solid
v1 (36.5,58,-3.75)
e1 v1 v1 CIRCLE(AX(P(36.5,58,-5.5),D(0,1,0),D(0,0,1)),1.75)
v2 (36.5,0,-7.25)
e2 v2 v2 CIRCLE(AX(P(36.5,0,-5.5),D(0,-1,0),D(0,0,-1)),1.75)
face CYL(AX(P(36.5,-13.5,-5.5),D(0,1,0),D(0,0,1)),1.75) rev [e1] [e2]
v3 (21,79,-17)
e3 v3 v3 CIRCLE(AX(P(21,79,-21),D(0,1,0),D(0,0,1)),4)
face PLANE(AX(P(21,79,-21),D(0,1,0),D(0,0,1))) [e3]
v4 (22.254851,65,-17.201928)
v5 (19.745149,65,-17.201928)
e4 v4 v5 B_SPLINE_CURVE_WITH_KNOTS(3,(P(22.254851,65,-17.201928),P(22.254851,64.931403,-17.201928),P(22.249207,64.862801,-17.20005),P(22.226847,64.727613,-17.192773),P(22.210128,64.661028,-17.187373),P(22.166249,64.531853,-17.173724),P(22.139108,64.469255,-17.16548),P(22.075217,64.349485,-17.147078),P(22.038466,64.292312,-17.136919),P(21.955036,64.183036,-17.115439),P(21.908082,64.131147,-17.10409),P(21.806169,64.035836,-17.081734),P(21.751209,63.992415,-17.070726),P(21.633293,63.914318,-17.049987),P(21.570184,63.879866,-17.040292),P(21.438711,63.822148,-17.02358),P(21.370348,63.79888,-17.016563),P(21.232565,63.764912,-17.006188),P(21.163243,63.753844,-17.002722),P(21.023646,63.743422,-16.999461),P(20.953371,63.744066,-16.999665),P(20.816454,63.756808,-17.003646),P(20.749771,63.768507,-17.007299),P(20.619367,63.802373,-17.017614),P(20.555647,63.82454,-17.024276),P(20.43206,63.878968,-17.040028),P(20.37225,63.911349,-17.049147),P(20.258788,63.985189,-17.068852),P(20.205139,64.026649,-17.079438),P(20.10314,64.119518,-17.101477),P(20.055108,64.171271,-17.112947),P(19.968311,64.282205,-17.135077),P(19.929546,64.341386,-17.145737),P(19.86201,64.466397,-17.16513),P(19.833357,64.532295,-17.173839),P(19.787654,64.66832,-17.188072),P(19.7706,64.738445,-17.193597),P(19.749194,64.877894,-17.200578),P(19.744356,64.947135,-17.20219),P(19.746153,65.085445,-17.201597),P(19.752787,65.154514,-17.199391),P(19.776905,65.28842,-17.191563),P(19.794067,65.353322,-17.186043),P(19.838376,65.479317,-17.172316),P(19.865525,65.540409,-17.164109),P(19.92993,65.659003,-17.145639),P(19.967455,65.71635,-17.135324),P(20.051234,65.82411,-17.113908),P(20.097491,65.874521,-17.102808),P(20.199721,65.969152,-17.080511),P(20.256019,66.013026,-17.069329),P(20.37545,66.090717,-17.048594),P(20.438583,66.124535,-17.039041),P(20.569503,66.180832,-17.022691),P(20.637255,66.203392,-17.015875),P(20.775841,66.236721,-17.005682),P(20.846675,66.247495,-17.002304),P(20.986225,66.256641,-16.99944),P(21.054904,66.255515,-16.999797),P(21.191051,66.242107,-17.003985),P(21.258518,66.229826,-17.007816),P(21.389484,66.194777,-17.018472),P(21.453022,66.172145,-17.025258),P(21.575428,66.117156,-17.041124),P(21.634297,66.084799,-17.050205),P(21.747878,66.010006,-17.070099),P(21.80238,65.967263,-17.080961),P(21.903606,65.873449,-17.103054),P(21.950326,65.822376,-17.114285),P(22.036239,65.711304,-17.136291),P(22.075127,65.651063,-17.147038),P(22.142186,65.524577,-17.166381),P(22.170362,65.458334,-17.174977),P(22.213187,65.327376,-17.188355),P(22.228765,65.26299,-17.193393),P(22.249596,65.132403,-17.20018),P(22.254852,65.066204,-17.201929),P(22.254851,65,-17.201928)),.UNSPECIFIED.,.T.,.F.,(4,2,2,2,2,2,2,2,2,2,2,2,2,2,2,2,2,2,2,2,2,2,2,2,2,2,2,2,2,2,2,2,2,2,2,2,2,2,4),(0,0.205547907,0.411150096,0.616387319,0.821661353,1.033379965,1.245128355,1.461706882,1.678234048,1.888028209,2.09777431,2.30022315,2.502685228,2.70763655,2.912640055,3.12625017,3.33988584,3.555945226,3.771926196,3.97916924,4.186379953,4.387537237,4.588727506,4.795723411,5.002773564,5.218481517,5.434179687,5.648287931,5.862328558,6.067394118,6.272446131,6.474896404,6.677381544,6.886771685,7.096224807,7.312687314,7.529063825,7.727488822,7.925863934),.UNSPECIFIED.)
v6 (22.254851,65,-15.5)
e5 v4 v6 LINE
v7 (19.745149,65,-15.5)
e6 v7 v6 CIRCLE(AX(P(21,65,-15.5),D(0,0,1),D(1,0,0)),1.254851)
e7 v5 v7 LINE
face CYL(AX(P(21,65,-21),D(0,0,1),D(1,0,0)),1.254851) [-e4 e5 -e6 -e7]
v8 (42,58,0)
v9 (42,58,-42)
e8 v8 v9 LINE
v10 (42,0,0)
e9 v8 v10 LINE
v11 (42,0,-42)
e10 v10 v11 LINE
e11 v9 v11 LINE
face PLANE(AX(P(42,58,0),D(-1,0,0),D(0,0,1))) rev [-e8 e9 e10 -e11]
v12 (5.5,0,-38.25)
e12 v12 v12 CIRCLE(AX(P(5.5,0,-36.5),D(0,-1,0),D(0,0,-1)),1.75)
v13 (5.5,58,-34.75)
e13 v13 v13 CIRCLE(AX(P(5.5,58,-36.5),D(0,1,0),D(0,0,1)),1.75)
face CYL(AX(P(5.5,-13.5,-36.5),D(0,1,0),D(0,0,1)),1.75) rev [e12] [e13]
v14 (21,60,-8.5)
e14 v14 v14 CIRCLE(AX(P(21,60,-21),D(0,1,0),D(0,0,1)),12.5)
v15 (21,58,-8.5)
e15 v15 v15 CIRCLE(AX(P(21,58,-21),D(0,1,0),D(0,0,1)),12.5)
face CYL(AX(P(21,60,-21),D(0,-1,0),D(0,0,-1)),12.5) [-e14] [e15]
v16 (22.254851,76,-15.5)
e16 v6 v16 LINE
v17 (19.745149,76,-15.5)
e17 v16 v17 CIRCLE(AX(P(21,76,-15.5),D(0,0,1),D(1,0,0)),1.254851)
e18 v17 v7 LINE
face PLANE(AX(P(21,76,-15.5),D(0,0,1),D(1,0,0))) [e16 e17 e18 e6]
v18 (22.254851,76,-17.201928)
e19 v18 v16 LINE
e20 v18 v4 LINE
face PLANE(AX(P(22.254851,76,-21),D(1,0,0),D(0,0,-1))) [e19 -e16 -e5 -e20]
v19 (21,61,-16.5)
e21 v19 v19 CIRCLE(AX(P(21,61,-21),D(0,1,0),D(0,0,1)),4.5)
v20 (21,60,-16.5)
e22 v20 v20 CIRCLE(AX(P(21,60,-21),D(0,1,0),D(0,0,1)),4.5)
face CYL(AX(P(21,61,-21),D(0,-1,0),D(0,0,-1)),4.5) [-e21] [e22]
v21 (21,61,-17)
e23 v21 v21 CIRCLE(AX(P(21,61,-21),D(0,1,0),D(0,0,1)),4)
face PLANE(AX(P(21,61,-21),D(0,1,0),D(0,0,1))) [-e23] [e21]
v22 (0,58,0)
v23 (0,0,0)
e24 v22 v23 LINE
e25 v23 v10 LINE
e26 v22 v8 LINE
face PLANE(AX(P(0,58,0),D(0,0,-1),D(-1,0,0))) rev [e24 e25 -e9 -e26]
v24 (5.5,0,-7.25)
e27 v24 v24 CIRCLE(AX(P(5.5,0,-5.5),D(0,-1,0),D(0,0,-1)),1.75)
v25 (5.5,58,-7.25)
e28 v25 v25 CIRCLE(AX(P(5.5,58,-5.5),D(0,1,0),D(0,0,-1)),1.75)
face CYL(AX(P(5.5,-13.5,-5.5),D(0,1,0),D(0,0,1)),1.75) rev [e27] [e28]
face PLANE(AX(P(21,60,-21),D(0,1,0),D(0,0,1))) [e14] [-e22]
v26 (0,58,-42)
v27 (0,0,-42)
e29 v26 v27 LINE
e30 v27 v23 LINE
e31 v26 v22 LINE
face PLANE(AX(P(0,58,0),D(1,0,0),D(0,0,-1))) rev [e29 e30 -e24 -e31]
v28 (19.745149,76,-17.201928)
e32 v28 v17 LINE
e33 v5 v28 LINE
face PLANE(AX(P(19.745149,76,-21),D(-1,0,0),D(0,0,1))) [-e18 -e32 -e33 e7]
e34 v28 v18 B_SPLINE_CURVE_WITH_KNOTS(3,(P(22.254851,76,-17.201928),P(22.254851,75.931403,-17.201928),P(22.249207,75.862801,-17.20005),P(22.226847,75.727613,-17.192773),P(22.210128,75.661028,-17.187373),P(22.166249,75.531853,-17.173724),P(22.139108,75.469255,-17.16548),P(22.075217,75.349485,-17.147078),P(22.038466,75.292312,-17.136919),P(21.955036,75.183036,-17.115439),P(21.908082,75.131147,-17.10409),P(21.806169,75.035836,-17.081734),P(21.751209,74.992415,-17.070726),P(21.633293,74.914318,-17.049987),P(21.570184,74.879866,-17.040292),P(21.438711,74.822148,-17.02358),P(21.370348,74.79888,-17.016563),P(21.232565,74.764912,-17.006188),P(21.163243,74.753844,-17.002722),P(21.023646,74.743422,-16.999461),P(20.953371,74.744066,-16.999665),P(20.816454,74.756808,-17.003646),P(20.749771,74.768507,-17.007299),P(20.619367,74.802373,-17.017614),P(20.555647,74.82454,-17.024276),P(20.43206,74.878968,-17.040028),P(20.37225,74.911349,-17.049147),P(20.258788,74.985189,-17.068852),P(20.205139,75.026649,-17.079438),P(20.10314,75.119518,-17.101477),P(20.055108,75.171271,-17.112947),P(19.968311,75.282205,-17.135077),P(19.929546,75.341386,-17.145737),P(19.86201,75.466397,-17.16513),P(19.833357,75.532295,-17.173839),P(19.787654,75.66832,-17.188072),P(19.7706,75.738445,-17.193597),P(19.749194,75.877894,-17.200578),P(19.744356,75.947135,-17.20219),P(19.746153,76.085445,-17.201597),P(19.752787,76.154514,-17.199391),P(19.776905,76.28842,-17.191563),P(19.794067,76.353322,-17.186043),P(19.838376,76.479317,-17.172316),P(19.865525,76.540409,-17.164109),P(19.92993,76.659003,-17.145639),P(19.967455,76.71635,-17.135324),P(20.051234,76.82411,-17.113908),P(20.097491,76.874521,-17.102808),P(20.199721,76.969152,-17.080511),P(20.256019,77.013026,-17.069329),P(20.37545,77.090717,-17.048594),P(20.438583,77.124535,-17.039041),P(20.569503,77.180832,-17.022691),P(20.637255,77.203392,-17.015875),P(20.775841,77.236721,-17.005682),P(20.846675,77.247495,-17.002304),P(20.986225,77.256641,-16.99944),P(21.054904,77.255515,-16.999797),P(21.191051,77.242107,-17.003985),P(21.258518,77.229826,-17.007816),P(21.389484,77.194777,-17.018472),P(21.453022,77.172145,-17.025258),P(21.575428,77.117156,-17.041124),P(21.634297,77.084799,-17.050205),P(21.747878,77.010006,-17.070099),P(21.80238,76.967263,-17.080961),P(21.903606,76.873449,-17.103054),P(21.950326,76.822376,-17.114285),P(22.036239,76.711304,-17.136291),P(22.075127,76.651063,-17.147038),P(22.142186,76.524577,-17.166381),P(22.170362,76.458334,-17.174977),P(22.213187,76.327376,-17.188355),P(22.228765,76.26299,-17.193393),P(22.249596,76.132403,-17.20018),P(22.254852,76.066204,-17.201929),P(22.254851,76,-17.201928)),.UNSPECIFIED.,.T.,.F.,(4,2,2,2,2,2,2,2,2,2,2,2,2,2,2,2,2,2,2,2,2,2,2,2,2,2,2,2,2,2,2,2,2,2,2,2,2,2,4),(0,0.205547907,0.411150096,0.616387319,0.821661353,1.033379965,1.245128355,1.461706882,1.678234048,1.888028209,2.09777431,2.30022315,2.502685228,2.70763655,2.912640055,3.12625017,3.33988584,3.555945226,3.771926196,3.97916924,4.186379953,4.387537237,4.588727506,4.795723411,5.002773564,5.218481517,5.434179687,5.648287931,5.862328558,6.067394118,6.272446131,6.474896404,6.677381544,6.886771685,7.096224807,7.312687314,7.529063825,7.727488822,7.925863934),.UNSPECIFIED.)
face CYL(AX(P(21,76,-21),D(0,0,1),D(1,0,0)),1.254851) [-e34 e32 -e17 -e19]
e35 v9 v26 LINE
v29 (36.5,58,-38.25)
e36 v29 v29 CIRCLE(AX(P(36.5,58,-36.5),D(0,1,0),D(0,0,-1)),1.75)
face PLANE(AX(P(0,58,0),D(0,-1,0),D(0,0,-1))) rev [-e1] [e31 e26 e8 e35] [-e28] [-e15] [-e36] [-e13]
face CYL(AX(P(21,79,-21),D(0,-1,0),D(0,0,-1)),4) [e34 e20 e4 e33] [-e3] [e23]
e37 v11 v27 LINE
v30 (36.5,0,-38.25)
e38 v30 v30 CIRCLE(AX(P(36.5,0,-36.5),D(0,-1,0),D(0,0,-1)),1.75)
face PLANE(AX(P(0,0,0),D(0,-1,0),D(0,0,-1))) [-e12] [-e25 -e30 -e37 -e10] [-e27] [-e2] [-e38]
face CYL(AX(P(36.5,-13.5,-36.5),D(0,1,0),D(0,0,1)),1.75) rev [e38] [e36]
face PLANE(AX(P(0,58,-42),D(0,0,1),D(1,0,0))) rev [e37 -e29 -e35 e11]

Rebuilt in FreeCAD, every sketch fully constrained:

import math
import FreeCAD as App
import Part
import Sketcher

V = App.Vector
Q = App.Units.Quantity


def add_polygon(sketch, points):
    """Adds a closed chain of lines whose ends are joined by coincident constraints."""
    first, n = sketch.GeometryCount, len(points)
    for a, b in zip(points, points[1:] + points[:1]):
        sketch.addGeometry(Part.LineSegment(App.Vector(*a, 0), App.Vector(*b, 0)), False)
    for i in range(n):
        sketch.addConstraint(Sketcher.Constraint("Coincident", first + i, 2, first + (i + 1) % n, 1))

doc = App.newDocument("Part")
body = doc.addObject("PartDesign::Body", "Body")

# Sketch on XZ plane
sketch1 = body.newObject("Sketcher::SketchObject", "Sketch")
sketch1.AttachmentSupport = (doc.getObject("XZ_Plane"), [""])
sketch1.MapMode = "FlatFace"
add_polygon(sketch1, [(0, -42), (0, 0), (42, 0), (42, -42)])  # lines 0-3
sketch1.addConstraint([
    Sketcher.Constraint("Vertical", 0),
    Sketcher.Constraint("Horizontal", 1),
    Sketcher.Constraint("Vertical", 2),
    Sketcher.Constraint("Horizontal", 3),
    Sketcher.Constraint("Coincident", 0, 2, -1, 1),
    Sketcher.Constraint("Equal", 3, 0),
    Sketcher.Constraint("DistanceX", 1, 1, 1, 2, Q("42 mm")),
])
pad1 = body.newObject("PartDesign::Pad", "Pad")
pad1.Profile = sketch1
pad1.Length = 58
pad1.Reversed = True

# Sketch on XZ plane
sketch2 = body.newObject("Sketcher::SketchObject", "Sketch001")
sketch2.AttachmentSupport = (doc.getObject("XZ_Plane"), [""])
sketch2.MapMode = "FlatFace"
sketch2.AttachmentOffset = App.Placement(V(0, 0, -58), App.Rotation())
sketch2.addGeometry(Part.Circle(V(21, -21, 0), V(0, 0, 1), 12), False)
sketch2.addConstraint([
    Sketcher.Constraint("Diameter", 0, Q("25 mm")),
    Sketcher.Constraint("DistanceX", -1, 1, 0, 3, Q("21 mm")),
    Sketcher.Constraint("DistanceY", 0, 3, -1, 1, Q("21 mm")),
])
pad2 = body.newObject("PartDesign::Pad", "Pad001")
pad2.Profile = sketch2
pad2.Length = 2
pad2.Reversed = True

# Sketch on XZ plane
sketch3 = body.newObject("Sketcher::SketchObject", "Sketch002")
sketch3.AttachmentSupport = (doc.getObject("XZ_Plane"), [""])
sketch3.MapMode = "FlatFace"
sketch3.AttachmentOffset = App.Placement(V(0, 0, -60), App.Rotation())
sketch3.addGeometry(Part.Circle(V(21, -21, 0), V(0, 0, 1), 4.5), False)
sketch3.addConstraint([
    Sketcher.Constraint("Diameter", 0, Q("9 mm")),
    Sketcher.Constraint("DistanceX", -1, 1, 0, 3, Q("21 mm")),
    Sketcher.Constraint("DistanceY", 0, 3, -1, 1, Q("21 mm")),
])
pad3 = body.newObject("PartDesign::Pad", "Pad002")
pad3.Profile = sketch3
pad3.Length = 1
pad3.Reversed = True

# Sketch on XZ plane
sketch4 = body.newObject("Sketcher::SketchObject", "Sketch003")
sketch4.AttachmentSupport = (doc.getObject("XZ_Plane"), [""])
sketch4.MapMode = "FlatFace"
sketch4.AttachmentOffset = App.Placement(V(0, 0, -61), App.Rotation())
sketch4.addGeometry(Part.Circle(V(21, -21, 0), V(0, 0, 1), 4), False)
sketch4.addConstraint([
    Sketcher.Constraint("Diameter", 0, Q("8 mm")),
    Sketcher.Constraint("DistanceX", -1, 1, 0, 3, Q("21 mm")),
    Sketcher.Constraint("DistanceY", 0, 3, -1, 1, Q("21 mm")),
])
pad4 = body.newObject("PartDesign::Pad", "Pad003")
pad4.Profile = sketch4
pad4.Length = 18
pad4.Reversed = True

# Sketch on XY plane
sketch5 = body.newObject("Sketcher::SketchObject", "Sketch004")
sketch5.AttachmentSupport = (doc.getObject("XY_Plane"), [""])
sketch5.MapMode = "FlatFace"
sketch5.AttachmentOffset = App.Placement(V(0, 0, -17), App.Rotation())
sketch5.addGeometry([
    Part.LineSegment(V(22.3, 65, 0), V(22.3, 76, 0)),
    Part.ArcOfCircle(Part.Circle(V(21, 76, 0), V(0, 0, 1), 1.3), math.radians(0), math.radians(180)),
    Part.LineSegment(V(19.7, 76, 0), V(19.7, 65, 0)),
    Part.ArcOfCircle(Part.Circle(V(21, 65, 0), V(0, 0, 1), 1.3), math.radians(180), math.radians(360)),
], False)
sketch5.addConstraint([
    Sketcher.Constraint("Tangent", 0, 2, 1, 1),
    Sketcher.Constraint("Tangent", 1, 2, 2, 1),
    Sketcher.Constraint("Tangent", 2, 2, 3, 1),
    Sketcher.Constraint("Tangent", 3, 2, 0, 1),
    Sketcher.Constraint("Vertical", 0),
    Sketcher.Constraint("Vertical", 2),
    Sketcher.Constraint("DistanceY", 0, 1, 0, 2, Q("11 mm")),
    Sketcher.Constraint("DistanceX", -1, 1, 1, 3, Q("21 mm")),
    Sketcher.Constraint("DistanceY", -1, 1, 1, 3, Q("76 mm")),
    Sketcher.Constraint("Radius", 1, Q("1.254851 mm")),
])
pad5 = body.newObject("PartDesign::Pad", "Pad004")
pad5.Profile = sketch5
pad5.Type = "TwoLengths"
pad5.Length = 1.5
pad5.Length2 = 4

# Sketch on XZ plane
sketch6 = body.newObject("Sketcher::SketchObject", "Sketch005")
sketch6.AttachmentSupport = (doc.getObject("XZ_Plane"), [""])
sketch6.MapMode = "FlatFace"
sketch6.AttachmentOffset = App.Placement(V(0, 0, -58), App.Rotation())
sketch6.addGeometry([
    Part.Circle(V(5.5, -36.5, 0), V(0, 0, 1), 1.8),
    Part.Circle(V(36.5, -36.5, 0), V(0, 0, 1), 1.8),
    Part.Circle(V(36.5, -5.5, 0), V(0, 0, 1), 1.8),
    Part.Circle(V(5.5, -5.5, 0), V(0, 0, 1), 1.8),
], False)
sketch6.addConstraint([
    Sketcher.Constraint("Equal", 0, 1),
    Sketcher.Constraint("Equal", 1, 2),
    Sketcher.Constraint("Equal", 2, 3),
    Sketcher.Constraint("Horizontal", 0, 3, 1, 3),
    Sketcher.Constraint("Horizontal", 2, 3, 3, 3),
    Sketcher.Constraint("Vertical", 1, 3, 2, 3),
    Sketcher.Constraint("Vertical", 0, 3, 3, 3),
    Sketcher.Constraint("Diameter", 0, Q("3.5 mm")),
    Sketcher.Constraint("DistanceX", 0, 3, 1, 3, Q("31 mm")),
    Sketcher.Constraint("DistanceY", 1, 3, 2, 3, Q("31 mm")),
    Sketcher.Constraint("DistanceX", -1, 1, 0, 3, Q("5.5 mm")),
    Sketcher.Constraint("DistanceY", 0, 3, -1, 1, Q("36.5 mm")),
])
pocket1 = body.newObject("PartDesign::Pocket", "Pocket")
pocket1.Profile = sketch6
pocket1.Length = 71.5
pocket1.Reversed = True

doc.recompute()
